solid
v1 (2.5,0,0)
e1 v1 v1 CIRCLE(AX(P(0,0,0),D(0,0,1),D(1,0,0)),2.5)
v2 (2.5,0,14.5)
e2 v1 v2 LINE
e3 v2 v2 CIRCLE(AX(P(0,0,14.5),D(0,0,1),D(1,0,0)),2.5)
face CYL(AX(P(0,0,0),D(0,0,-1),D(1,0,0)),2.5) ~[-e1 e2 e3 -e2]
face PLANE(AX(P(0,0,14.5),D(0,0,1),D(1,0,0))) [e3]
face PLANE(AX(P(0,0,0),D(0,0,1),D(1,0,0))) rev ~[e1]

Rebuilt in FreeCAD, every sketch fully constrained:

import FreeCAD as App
import Part
import Sketcher

doc = App.newDocument("Part")
body = doc.addObject("PartDesign::Body", "Body")

sketch1 = body.newObject("Sketcher::SketchObject", "Sketch")
sketch1.AttachmentSupport = (doc.getObject("XY_Plane"), [""])
sketch1.MapMode = "FlatFace"
sketch1.addGeometry(Part.Circle(App.Vector(0, 0, 0), App.Vector(0, 0, 1), 2.5), False)
sketch1.addConstraint(Sketcher.Constraint("Coincident", 0, 3, -1, 1))
sketch1.addConstraint(Sketcher.Constraint("Diameter", 0, 5.0))
pad1 = body.newObject("PartDesign::Pad", "Pad")
pad1.Profile = sketch1
pad1.Length = 14.5

doc.recompute()
